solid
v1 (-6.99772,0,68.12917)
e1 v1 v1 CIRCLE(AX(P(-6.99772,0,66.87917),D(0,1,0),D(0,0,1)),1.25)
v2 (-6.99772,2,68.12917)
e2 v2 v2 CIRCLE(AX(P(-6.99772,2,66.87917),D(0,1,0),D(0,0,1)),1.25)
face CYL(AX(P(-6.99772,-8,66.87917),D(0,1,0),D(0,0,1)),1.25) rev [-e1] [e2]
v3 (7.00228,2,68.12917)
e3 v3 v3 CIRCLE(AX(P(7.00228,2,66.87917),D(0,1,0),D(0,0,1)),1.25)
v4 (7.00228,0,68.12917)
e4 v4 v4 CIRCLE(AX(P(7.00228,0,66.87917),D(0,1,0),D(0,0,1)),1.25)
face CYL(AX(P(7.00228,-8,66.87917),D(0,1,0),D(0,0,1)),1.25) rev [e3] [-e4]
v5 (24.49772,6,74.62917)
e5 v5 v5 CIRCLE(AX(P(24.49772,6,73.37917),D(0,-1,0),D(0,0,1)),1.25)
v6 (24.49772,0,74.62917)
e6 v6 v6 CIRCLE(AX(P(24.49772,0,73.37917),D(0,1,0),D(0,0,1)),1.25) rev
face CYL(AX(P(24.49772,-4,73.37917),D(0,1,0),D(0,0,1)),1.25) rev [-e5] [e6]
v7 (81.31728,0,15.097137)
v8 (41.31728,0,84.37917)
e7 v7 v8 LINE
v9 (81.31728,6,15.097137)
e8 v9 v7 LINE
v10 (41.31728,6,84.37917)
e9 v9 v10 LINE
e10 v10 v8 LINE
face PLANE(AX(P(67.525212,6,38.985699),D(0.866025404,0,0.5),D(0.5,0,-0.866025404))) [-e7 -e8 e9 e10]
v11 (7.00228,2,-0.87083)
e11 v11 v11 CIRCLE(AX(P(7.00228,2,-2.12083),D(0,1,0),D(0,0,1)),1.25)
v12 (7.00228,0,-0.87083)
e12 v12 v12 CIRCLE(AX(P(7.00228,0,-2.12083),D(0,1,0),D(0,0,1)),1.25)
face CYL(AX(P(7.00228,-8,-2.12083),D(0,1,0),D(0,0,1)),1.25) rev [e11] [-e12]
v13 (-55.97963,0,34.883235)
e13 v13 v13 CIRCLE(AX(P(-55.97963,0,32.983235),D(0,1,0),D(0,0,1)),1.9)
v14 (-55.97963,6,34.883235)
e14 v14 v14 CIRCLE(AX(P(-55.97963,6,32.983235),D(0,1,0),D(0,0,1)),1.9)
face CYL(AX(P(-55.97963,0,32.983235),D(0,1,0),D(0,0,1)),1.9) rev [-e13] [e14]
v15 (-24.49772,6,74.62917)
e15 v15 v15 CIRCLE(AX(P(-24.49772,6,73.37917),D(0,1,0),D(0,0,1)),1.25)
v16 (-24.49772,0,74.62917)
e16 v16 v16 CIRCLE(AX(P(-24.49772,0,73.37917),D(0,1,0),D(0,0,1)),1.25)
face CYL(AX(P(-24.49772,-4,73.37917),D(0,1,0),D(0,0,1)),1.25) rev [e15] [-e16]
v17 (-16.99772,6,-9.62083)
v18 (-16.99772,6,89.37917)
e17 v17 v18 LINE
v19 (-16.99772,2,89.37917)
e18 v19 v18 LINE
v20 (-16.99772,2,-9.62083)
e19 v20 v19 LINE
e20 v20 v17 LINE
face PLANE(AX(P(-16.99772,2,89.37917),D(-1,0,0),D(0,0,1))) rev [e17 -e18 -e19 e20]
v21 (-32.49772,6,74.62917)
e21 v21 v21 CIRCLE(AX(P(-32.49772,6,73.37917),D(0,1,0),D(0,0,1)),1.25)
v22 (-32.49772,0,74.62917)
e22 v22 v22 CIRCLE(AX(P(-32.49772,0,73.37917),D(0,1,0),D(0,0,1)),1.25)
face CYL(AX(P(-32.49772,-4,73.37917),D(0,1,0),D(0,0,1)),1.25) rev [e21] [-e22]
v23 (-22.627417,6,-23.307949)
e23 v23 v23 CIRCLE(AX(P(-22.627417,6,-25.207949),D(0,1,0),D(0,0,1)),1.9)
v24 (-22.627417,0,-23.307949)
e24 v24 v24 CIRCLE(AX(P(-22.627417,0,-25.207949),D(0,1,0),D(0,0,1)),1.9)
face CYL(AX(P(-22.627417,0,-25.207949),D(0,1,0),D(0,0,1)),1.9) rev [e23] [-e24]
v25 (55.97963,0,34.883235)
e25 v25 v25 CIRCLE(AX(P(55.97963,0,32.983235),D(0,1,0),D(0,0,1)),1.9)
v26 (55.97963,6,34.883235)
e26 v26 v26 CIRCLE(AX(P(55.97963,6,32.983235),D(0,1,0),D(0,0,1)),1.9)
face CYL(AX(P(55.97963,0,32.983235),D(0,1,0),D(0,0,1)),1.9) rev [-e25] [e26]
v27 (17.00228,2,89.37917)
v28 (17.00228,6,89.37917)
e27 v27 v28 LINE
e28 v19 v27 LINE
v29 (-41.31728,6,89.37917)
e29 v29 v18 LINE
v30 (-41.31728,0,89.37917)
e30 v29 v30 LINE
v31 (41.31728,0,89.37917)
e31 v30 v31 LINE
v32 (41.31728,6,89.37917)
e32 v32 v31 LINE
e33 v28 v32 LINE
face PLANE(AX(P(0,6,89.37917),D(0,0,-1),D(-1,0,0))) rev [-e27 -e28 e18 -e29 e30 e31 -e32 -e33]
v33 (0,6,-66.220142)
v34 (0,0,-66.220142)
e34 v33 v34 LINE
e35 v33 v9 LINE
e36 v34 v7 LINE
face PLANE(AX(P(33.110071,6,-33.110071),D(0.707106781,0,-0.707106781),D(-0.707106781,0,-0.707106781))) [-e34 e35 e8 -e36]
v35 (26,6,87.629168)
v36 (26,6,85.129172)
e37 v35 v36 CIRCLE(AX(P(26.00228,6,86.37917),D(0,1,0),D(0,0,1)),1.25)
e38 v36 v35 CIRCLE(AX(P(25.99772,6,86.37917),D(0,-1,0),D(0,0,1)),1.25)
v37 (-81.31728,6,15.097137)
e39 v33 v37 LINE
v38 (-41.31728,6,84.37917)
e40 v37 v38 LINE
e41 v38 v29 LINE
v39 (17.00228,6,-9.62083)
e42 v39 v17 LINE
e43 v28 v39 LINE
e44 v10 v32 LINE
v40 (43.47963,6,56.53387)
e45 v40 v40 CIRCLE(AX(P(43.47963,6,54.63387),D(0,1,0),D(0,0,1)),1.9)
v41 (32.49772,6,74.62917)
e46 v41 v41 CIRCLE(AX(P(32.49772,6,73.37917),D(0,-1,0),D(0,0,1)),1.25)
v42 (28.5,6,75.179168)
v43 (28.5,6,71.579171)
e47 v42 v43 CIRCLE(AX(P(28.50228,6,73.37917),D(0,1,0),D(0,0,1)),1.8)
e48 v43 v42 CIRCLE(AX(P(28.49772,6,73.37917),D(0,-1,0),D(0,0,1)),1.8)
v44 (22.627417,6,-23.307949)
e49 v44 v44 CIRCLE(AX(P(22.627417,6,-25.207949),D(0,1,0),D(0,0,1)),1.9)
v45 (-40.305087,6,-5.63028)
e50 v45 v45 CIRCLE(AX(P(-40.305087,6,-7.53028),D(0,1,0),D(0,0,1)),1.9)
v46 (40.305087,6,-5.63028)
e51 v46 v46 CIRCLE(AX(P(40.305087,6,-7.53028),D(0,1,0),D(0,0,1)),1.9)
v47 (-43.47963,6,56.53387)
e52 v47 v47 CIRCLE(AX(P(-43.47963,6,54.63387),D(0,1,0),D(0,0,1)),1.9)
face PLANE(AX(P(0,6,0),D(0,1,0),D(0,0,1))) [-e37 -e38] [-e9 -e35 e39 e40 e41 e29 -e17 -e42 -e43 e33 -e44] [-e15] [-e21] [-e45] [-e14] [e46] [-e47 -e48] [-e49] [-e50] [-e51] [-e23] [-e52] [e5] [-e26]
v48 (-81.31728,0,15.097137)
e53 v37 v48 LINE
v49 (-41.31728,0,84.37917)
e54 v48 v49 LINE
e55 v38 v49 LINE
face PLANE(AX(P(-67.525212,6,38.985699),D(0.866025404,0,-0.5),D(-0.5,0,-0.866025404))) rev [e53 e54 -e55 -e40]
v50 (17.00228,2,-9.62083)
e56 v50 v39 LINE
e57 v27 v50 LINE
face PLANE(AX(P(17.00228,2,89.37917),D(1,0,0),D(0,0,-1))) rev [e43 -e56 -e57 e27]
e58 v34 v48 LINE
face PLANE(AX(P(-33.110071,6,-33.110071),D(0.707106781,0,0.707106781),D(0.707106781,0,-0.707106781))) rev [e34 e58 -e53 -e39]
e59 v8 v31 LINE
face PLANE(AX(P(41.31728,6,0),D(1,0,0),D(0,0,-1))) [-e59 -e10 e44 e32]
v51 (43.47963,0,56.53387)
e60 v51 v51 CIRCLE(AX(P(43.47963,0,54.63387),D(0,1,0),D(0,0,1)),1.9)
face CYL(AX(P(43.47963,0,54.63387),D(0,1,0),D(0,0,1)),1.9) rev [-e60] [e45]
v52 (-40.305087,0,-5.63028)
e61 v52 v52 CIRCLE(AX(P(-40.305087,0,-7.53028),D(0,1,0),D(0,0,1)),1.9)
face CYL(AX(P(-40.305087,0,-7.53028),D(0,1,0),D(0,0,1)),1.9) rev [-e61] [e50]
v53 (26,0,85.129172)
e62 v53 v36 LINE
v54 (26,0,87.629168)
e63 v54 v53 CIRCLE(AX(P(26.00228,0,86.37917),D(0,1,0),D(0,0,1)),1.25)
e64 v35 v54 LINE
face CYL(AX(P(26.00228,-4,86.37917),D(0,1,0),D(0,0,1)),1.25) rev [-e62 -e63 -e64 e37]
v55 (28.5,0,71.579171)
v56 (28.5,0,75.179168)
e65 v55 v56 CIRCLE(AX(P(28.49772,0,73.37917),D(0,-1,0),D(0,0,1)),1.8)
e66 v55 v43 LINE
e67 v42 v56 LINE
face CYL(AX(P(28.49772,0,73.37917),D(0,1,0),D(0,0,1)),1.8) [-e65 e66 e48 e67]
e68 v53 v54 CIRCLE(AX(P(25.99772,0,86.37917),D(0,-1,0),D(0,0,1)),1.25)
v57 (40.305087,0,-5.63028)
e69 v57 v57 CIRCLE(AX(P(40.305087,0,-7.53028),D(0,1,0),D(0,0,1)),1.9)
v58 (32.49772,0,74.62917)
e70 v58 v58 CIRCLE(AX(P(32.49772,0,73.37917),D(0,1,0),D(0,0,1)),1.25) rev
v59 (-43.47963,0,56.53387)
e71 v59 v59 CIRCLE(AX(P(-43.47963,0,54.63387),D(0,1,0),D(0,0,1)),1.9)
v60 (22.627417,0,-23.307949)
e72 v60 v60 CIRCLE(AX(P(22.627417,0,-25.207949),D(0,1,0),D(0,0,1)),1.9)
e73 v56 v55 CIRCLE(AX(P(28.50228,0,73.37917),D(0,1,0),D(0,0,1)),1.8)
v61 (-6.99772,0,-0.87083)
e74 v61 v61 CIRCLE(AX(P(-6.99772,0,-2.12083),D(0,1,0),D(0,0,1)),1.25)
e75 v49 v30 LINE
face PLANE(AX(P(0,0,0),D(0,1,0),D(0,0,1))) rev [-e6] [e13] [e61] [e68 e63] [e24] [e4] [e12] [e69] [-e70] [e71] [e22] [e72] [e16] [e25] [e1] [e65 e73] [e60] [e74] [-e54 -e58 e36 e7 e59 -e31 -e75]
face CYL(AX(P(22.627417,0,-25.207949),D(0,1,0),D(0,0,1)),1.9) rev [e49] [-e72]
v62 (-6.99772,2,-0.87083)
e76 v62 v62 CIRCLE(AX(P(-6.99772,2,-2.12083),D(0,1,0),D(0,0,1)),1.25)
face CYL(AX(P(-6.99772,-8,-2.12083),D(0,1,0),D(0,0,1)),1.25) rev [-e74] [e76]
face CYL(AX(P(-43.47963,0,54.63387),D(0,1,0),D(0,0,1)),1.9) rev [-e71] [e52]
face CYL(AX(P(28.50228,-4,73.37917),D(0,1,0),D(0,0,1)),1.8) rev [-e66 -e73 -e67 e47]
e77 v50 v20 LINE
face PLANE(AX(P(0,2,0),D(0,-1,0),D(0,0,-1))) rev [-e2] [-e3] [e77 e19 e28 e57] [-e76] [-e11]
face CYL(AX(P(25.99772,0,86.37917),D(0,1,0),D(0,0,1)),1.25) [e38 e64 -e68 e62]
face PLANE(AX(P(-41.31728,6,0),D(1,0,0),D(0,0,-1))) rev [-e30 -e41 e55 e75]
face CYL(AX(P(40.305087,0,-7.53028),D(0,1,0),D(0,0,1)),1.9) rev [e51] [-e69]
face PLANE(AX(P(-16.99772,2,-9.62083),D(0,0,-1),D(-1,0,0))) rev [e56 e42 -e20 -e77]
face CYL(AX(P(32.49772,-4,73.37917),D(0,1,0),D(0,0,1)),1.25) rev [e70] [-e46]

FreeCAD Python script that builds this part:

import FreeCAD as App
import Part
import Sketcher
from FreeCAD import Vector
Q = App.Units.Quantity


def add_polygon(sketch, points):
    """Adds a closed chain of lines whose ends are joined by coincident constraints."""
    first, n = sketch.GeometryCount, len(points)
    for a, b in zip(points, points[1:] + points[:1]):
        sketch.addGeometry(Part.LineSegment(App.Vector(*a, 0), App.Vector(*b, 0)), False)
    for i in range(n):
        sketch.addConstraint(Sketcher.Constraint("Coincident", first + i, 2, first + (i + 1) % n, 1))

doc = App.newDocument("Part")
body = doc.addObject("PartDesign::Body", "Body")

# Sketch on XZ plane
sketch1 = body.newObject("Sketcher::SketchObject", "Sketch")
sketch1.AttachmentSupport = (doc.getObject("XZ_Plane"), [""])
sketch1.MapMode = "FlatFace"
add_polygon(sketch1, [(-41, 84), (-41, 89), (41, 89), (41, 84), (81, 15), (0, -66), (-81, 15)])  # lines 0-6
sketch1.addConstraint([
    Sketcher.Constraint("Vertical", 0),
    Sketcher.Constraint("Horizontal", 1),
    Sketcher.Constraint("Vertical", 2),
    Sketcher.Constraint("Symmetric", 3, 2, 5, 2, -2),
    Sketcher.Constraint("Symmetric", 2, 2, 6, 2, -2),
    Sketcher.Constraint("PointOnObject", 4, 2, -2),
    Sketcher.Constraint("Perpendicular", 4, 5),
    Sketcher.Constraint("DistanceY", 0, 1, 0, 2, Q("5 mm")),
    Sketcher.Constraint("Angle", 3, Q("-60 deg")),
    Sketcher.Constraint("Distance", 3, Q("80 mm")),
    Sketcher.Constraint("Distance", 4, Q("115 mm")),
    Sketcher.Constraint("DistanceY", -1, 1, 0, 2, Q("89.37917 mm")),
])
pad1 = body.newObject("PartDesign::Pad", "Pad")
pad1.Profile = sketch1
pad1.Length = 6
pad1.Reversed = True

# Sketch on XZ plane
sketch2 = body.newObject("Sketcher::SketchObject", "Sketch001")
sketch2.AttachmentSupport = (doc.getObject("XZ_Plane"), [""])
sketch2.MapMode = "FlatFace"
sketch2.AttachmentOffset = App.Placement(Vector(0, 0, -6), App.Rotation())
add_polygon(sketch2, [(-17, -10), (-17, 89), (17, 89), (17, -10)])  # lines 0-3
sketch2.addConstraint([
    Sketcher.Constraint("Vertical", 0),
    Sketcher.Constraint("Horizontal", 1),
    Sketcher.Constraint("Vertical", 2),
    Sketcher.Constraint("Horizontal", 3),
    Sketcher.Constraint("DistanceX", 1, 1, 1, 2, Q("34 mm")),
    Sketcher.Constraint("DistanceY", 0, 1, 0, 2, Q("99 mm")),
    Sketcher.Constraint("DistanceX", 0, 2, -1, 1, Q("16.99772 mm")),
    Sketcher.Constraint("DistanceY", -1, 1, 0, 2, Q("89.37917 mm")),
])
pocket1 = body.newObject("PartDesign::Pocket", "Pocket")
pocket1.Profile = sketch2
pocket1.Length = 4
pocket1.Reversed = True

# Sketch on XZ plane
sketch3 = body.newObject("Sketcher::SketchObject", "Sketch002")
sketch3.AttachmentSupport = (doc.getObject("XZ_Plane"), [""])
sketch3.MapMode = "FlatFace"
sketch3.AttachmentOffset = App.Placement(Vector(0, 0, -6), App.Rotation())
sketch3.addGeometry([
    Part.Circle(Vector(-22.6, -25.2, 0), Vector(0, 0, 1), 1.9),  # 0
    Part.Circle(Vector(-40.3, -7.5, 0), Vector(0, 0, 1), 1.9),  # 1
    Part.Circle(Vector(-56, 33, 0), Vector(0, 0, 1), 1.9),  # 2
    Part.Circle(Vector(-43.5, 54.6, 0), Vector(0, 0, 1), 1.9),  # 3
    Part.Circle(Vector(43.5, 54.6, 0), Vector(0, 0, 1), 1.9),  # 4
    Part.Circle(Vector(56, 33, 0), Vector(0, 0, 1), 1.9),  # 5
    Part.Circle(Vector(22.6, -25.2, 0), Vector(0, 0, 1), 1.9),  # 6
    Part.Circle(Vector(40.3, -7.5, 0), Vector(0, 0, 1), 1.9),  # 7
], False)
sketch3.addConstraint([
    Sketcher.Constraint("Equal", 0, 1),
    Sketcher.Constraint("Equal", 1, 2),
    Sketcher.Constraint("Equal", 2, 3),
    Sketcher.Constraint("Equal", 3, 4),
    Sketcher.Constraint("Equal", 4, 5),
    Sketcher.Constraint("Equal", 5, 6),
    Sketcher.Constraint("Equal", 6, 7),
    Sketcher.Constraint("Symmetric", 3, 3, 4, 3, -2),
    Sketcher.Constraint("Symmetric", 2, 3, 5, 3, -2),
    Sketcher.Constraint("Symmetric", 0, 3, 6, 3, -2),
    Sketcher.Constraint("Symmetric", 1, 3, 7, 3, -2),
    Sketcher.Constraint("Diameter", 0, Q("3.8 mm")),
    Sketcher.Constraint("DistanceX", 2, 3, 3, 3, Q("12.5 mm")),
    Sketcher.Constraint("DistanceY", 0, 3, -1, 1, Q("25.207949 mm")),
    Sketcher.Constraint("DistanceY", 1, 3, -1, 1, Q("7.53028 mm")),
    Sketcher.Constraint("DistanceX", 2, 3, -1, 1, Q("55.97963 mm")),
    Sketcher.Constraint("DistanceY", -1, 1, 3, 3, Q("54.63387 mm")),
    Sketcher.Constraint("DistanceX", 1, 3, 0, 3, Q("17.67767 mm")),
    Sketcher.Constraint("DistanceX", 0, 3, -1, 1, Q("22.627417 mm")),
    Sketcher.Constraint("DistanceY", -1, 1, 2, 3, Q("32.983235 mm")),
])
pocket2 = body.newObject("PartDesign::Pocket", "Pocket001")
pocket2.Profile = sketch3
pocket2.Type = "ThroughAll"
pocket2.Reversed = True

# Sketch on XZ plane
sketch4 = body.newObject("Sketcher::SketchObject", "Sketch003")
sketch4.AttachmentSupport = (doc.getObject("XZ_Plane"), [""])
sketch4.MapMode = "FlatFace"
sketch4.AttachmentOffset = App.Placement(Vector(0, 0, -6), App.Rotation())
sketch4.addGeometry([
    Part.Circle(Vector(-28.5, 73.4, 0), Vector(0, 0, 1), 1.8),
    Part.Circle(Vector(28.5, 73.4, 0), Vector(0, 0, 1), 1.8),
    Part.Circle(Vector(26, 86.4, 0), Vector(0, 0, 1), 1.2),
    Part.Circle(Vector(-26, 86.4, 0), Vector(0, 0, 1), 1.2),
], False)
sketch4.addConstraint([
    Sketcher.Constraint("Equal", 0, 1),
    Sketcher.Constraint("Equal", 2, 3),
    Sketcher.Constraint("Horizontal", 0, 3, 1, 3),
    Sketcher.Constraint("Horizontal", 2, 3, 3, 3),
    Sketcher.Constraint("Diameter", 0, Q("3.6 mm")),
    Sketcher.Constraint("Diameter", 2, Q("2.5 mm")),
    Sketcher.Constraint("DistanceX", 0, 3, 1, 3, Q("57 mm")),
    Sketcher.Constraint("DistanceY", 1, 3, 2, 3, Q("13 mm")),
    Sketcher.Constraint("DistanceX", 3, 3, 2, 3, Q("52 mm")),
    Sketcher.Constraint("DistanceX", 2, 3, 1, 3, Q("2.5 mm")),
    Sketcher.Constraint("DistanceX", 0, 3, -1, 1, Q("28.49772 mm")),
    Sketcher.Constraint("DistanceY", -1, 1, 0, 3, Q("73.37917 mm")),
])
pocket3 = body.newObject("PartDesign::Pocket", "Pocket002")
pocket3.Profile = sketch4
pocket3.Length = 10
pocket3.Reversed = True

# Sketch on XZ plane
sketch5 = body.newObject("Sketcher::SketchObject", "Sketch004")
sketch5.AttachmentSupport = (doc.getObject("XZ_Plane"), [""])
sketch5.MapMode = "FlatFace"
sketch5.AttachmentOffset = App.Placement(Vector(0, 0, -2), App.Rotation())
sketch5.addGeometry([
    Part.Circle(Vector(7, -2.1, 0), Vector(0, 0, 1), 1.2),
    Part.Circle(Vector(-7, -2.1, 0), Vector(0, 0, 1), 1.2),
    Part.Circle(Vector(-7, 66.9, 0), Vector(0, 0, 1), 1.2),
    Part.Circle(Vector(7, 66.9, 0), Vector(0, 0, 1), 1.2),
], False)
sketch5.addConstraint([
    Sketcher.Constraint("Equal", 0, 1),
    Sketcher.Constraint("Equal", 1, 2),
    Sketcher.Constraint("Equal", 2, 3),
    Sketcher.Constraint("Horizontal", 0, 3, 1, 3),
    Sketcher.Constraint("Horizontal", 2, 3, 3, 3),
    Sketcher.Constraint("Vertical", 1, 3, 2, 3),
    Sketcher.Constraint("Vertical", 0, 3, 3, 3),
    Sketcher.Constraint("Diameter", 0, Q("2.5 mm")),
    Sketcher.Constraint("DistanceX", 1, 3, 0, 3, Q("14 mm")),
    Sketcher.Constraint("DistanceY", 1, 3, 2, 3, Q("69 mm")),
    Sketcher.Constraint("DistanceX", -1, 1, 0, 3, Q("7.00228 mm")),
    Sketcher.Constraint("DistanceY", 0, 3, -1, 1, Q("2.12083 mm")),
])
pocket4 = body.newObject("PartDesign::Pocket", "Pocket003")
pocket4.Profile = sketch5
pocket4.Length = 10
pocket4.Reversed = True

# Sketch on XZ plane
sketch6 = body.newObject("Sketcher::SketchObject", "Sketch005")
sketch6.AttachmentSupport = (doc.getObject("XZ_Plane"), [""])
sketch6.MapMode = "FlatFace"
sketch6.AttachmentOffset = App.Placement(Vector(0, 0, -6), App.Rotation())
sketch6.addGeometry([
    Part.Circle(Vector(-32.5, 73.4, 0), Vector(0, 0, 1), 1.2),
    Part.Circle(Vector(-24.5, 73.4, 0), Vector(0, 0, 1), 1.2),
], False)
sketch6.addConstraint([
    Sketcher.Constraint("Equal", 0, 1),
    Sketcher.Constraint("Horizontal", 0, 3, 1, 3),
    Sketcher.Constraint("Diameter", 0, Q("2.5 mm")),
    Sketcher.Constraint("DistanceX", 0, 3, 1, 3, Q("8 mm")),
    Sketcher.Constraint("DistanceX", 0, 3, -1, 1, Q("32.49772 mm")),
    Sketcher.Constraint("DistanceY", -1, 1, 0, 3, Q("73.37917 mm")),
])
pocket5 = body.newObject("PartDesign::Pocket", "Pocket004")
pocket5.Profile = sketch6
pocket5.Length = 10
pocket5.Reversed = True
doc.recompute()

mirrored = body.newObject("PartDesign::Mirrored", "Mirrored")
mirrored.Originals = [pocket5]
mirrored.MirrorPlane = (doc.getObject("YZ_Plane"), [""])
body.Tip = mirrored

# Sketch on XZ plane
sketch7 = body.newObject("Sketcher::SketchObject", "Sketch006")
sketch7.AttachmentSupport = (doc.getObject("XZ_Plane"), [""])
sketch7.MapMode = "FlatFace"
sketch7.AttachmentOffset = App.Placement(Vector(0, 0, -6), App.Rotation())
sketch7.addGeometry([
    Part.Circle(Vector(-28.5, 73.4, 0), Vector(0, 0, 1), 1.8),
    Part.Circle(Vector(-26, 86.4, 0), Vector(0, 0, 1), 1.2),
], False)
sketch7.addConstraint([
    Sketcher.Constraint("Diameter", 0, Q("3.6 mm")),
    Sketcher.Constraint("Diameter", 1, Q("2.5 mm")),
    Sketcher.Constraint("DistanceY", 0, 3, 1, 3, Q("13 mm")),
    Sketcher.Constraint("DistanceX", 0, 3, 1, 3, Q("2.5 mm")),
    Sketcher.Constraint("DistanceX", 0, 3, -1, 1, Q("28.49772 mm")),
    Sketcher.Constraint("DistanceY", -1, 1, 0, 3, Q("73.37917 mm")),
])
pad2 = body.newObject("PartDesign::Pad", "Pad001")
pad2.Profile = sketch7
pad2.Length = 6
doc.recompute()

mirrored2 = body.newObject("PartDesign::Mirrored", "Mirrored001")
mirrored2.Originals = [pad2]
mirrored2.MirrorPlane = (doc.getObject("YZ_Plane"), [""])
body.Tip = mirrored2

doc.recompute()
